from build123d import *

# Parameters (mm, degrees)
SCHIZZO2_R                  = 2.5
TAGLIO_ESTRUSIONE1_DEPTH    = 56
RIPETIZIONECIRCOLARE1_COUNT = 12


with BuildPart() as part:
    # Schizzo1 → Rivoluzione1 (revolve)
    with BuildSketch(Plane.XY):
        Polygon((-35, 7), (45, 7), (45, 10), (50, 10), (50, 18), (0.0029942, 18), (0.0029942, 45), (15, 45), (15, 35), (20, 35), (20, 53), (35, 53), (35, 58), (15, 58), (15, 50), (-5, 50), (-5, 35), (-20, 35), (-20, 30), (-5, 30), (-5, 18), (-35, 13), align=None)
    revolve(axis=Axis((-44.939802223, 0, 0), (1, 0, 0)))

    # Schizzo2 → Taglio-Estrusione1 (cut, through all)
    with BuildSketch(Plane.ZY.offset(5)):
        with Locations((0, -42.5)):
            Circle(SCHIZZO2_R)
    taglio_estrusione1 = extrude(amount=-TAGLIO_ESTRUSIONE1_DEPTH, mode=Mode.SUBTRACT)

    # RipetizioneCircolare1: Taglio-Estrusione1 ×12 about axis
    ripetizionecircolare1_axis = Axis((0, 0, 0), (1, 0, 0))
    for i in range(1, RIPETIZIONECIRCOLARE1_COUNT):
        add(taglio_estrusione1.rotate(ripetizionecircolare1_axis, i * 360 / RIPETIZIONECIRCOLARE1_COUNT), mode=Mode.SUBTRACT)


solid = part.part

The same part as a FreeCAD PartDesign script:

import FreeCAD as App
import Part
import Sketcher

V = App.Vector
Q = App.Units.Quantity

doc = App.newDocument("Part")
body = doc.addObject("PartDesign::Body", "Body")

sketch1 = body.newObject("Sketcher::SketchObject", "Sketch")
sketch1.AttachmentSupport = (doc.getObject("XY_Plane"), [""])
sketch1.MapMode = "FlatFace"
sketch1.addGeometry([
    Part.LineSegment(V(-35, 7, 0), V(45, 7, 0)),
    Part.LineSegment(V(45, 7, 0), V(45, 10, 0)),
    Part.LineSegment(V(45, 10, 0), V(50, 10, 0)),
    Part.LineSegment(V(50, 10, 0), V(50, 18, 0)),
    Part.LineSegment(V(50, 18, 0), V(0, 18, 0)),
    Part.LineSegment(V(0, 18, 0), V(0, 45, 0)),
    Part.LineSegment(V(0, 45, 0), V(15, 45, 0)),
    Part.LineSegment(V(15, 45, 0), V(15, 35, 0)),
    Part.LineSegment(V(15, 35, 0), V(20, 35, 0)),
    Part.LineSegment(V(20, 35, 0), V(20, 53, 0)),
    Part.LineSegment(V(20, 53, 0), V(35, 53, 0)),
    Part.LineSegment(V(35, 53, 0), V(35, 58, 0)),
    Part.LineSegment(V(35, 58, 0), V(15, 58, 0)),
    Part.LineSegment(V(15, 58, 0), V(15, 50, 0)),
    Part.LineSegment(V(15, 50, 0), V(-5, 50, 0)),
    Part.LineSegment(V(-5, 50, 0), V(-5, 35, 0)),
    Part.LineSegment(V(-5, 35, 0), V(-20, 35, 0)),
    Part.LineSegment(V(-20, 35, 0), V(-20, 30, 0)),
    Part.LineSegment(V(-20, 30, 0), V(-5, 30, 0)),
    Part.LineSegment(V(-5, 30, 0), V(-5, 18, 0)),
    Part.LineSegment(V(-5, 18, 0), V(-35, 13, 0)),
    Part.LineSegment(V(-35, 13, 0), V(-35, 7, 0)),
], False)
sketch1.addConstraint([
    Sketcher.Constraint("Coincident", 0, 2, 1, 1),
    Sketcher.Constraint("Coincident", 1, 2, 2, 1),
    Sketcher.Constraint("Coincident", 2, 2, 3, 1),
    Sketcher.Constraint("Coincident", 3, 2, 4, 1),
    Sketcher.Constraint("Coincident", 4, 2, 5, 1),
    Sketcher.Constraint("Coincident", 5, 2, 6, 1),
    Sketcher.Constraint("Coincident", 6, 2, 7, 1),
    Sketcher.Constraint("Coincident", 7, 2, 8, 1),
    Sketcher.Constraint("Coincident", 8, 2, 9, 1),
    Sketcher.Constraint("Coincident", 9, 2, 10, 1),
    Sketcher.Constraint("Coincident", 10, 2, 11, 1),
    Sketcher.Constraint("Coincident", 11, 2, 12, 1),
    Sketcher.Constraint("Coincident", 12, 2, 13, 1),
    Sketcher.Constraint("Coincident", 13, 2, 14, 1),
    Sketcher.Constraint("Coincident", 14, 2, 15, 1),
    Sketcher.Constraint("Coincident", 15, 2, 16, 1),
    Sketcher.Constraint("Coincident", 16, 2, 17, 1),
    Sketcher.Constraint("Coincident", 17, 2, 18, 1),
    Sketcher.Constraint("Coincident", 18, 2, 19, 1),
    Sketcher.Constraint("Coincident", 19, 2, 20, 1),
    Sketcher.Constraint("Coincident", 20, 2, 21, 1),
    Sketcher.Constraint("Coincident", 21, 2, 0, 1),
    Sketcher.Constraint("Horizontal", 0),
    Sketcher.Constraint("Vertical", 1),
    Sketcher.Constraint("Horizontal", 2),
    Sketcher.Constraint("Vertical", 3),
    Sketcher.Constraint("Horizontal", 4),
    Sketcher.Constraint("Vertical", 5),
    Sketcher.Constraint("Horizontal", 6),
    Sketcher.Constraint("Vertical", 7),
    Sketcher.Constraint("Horizontal", 8),
    Sketcher.Constraint("Vertical", 9),
    Sketcher.Constraint("Horizontal", 10),
    Sketcher.Constraint("Vertical", 11),
    Sketcher.Constraint("Horizontal", 12),
    Sketcher.Constraint("Vertical", 13),
    Sketcher.Constraint("Horizontal", 14),
    Sketcher.Constraint("Vertical", 15),
    Sketcher.Constraint("Horizontal", 16),
    Sketcher.Constraint("Vertical", 17),
    Sketcher.Constraint("Horizontal", 18),
    Sketcher.Constraint("Vertical", 19),
    Sketcher.Constraint("Vertical", 21),
    Sketcher.Constraint("Symmetric", 8, 2, 16, 2, -2),
    Sketcher.Constraint("Horizontal", 4, 2, 19, 2),
    Sketcher.Constraint("Vertical", 7, 2, 12, 2),
    Sketcher.Constraint("Vertical", 15, 2, 18, 2),
    Sketcher.Constraint("Equal", 2, 8),
    Sketcher.Constraint("Equal", 12, 14),
    Sketcher.Constraint("Equal", 10, 16),
    Sketcher.Constraint("Equal", 8, 11),
    Sketcher.Constraint("Equal", 3, 13),
    Sketcher.Constraint("Equal", 18, 15),
    Sketcher.Constraint("Equal", 11, 17),
    Sketcher.Constraint("DistanceX", 0, 1, 0, 2, Q("80 mm")),
    Sketcher.Constraint("DistanceX", 2, 1, 2, 2, Q("5 mm")),
    Sketcher.Constraint("DistanceX", 10, 1, 10, 2, Q("15 mm")),
    Sketcher.Constraint("DistanceY", 1, 1, 1, 2, Q("3 mm")),
    Sketcher.Constraint("DistanceY", 3, 1, 3, 2, Q("8 mm")),
    Sketcher.Constraint("DistanceY", 5, 1, 5, 2, Q("27 mm")),
    Sketcher.Constraint("DistanceY", 7, 2, 7, 1, Q("10 mm")),
    Sketcher.Constraint("DistanceY", 21, 2, 21, 1, Q("6 mm")),
    Sketcher.Constraint("DistanceX", -1, 1, 0, 2, Q("45 mm")),
    Sketcher.Constraint("DistanceY", -1, 1, 0, 2, Q("7 mm")),
    Sketcher.Constraint("DistanceX", 4, 2, 4, 1, Q("49.997006 mm")),
])
revolution = body.newObject("PartDesign::Revolution", "Revolution")
revolution.Profile = sketch1
revolution.ReferenceAxis = (sketch1, ["H_Axis"])
revolution.Angle = 360

sketch2 = body.newObject("Sketcher::SketchObject", "Sketch001")
sketch2.AttachmentSupport = (doc.getObject("YZ_Plane"), [""])
sketch2.MapMode = "FlatFace"
sketch2.AttachmentOffset = App.Placement(V(0, 0, -5), App.Rotation())
sketch2.addGeometry(Part.Circle(V(-42.5, 0, 0), V(0, 0, 1), 2.5), False)
sketch2.addConstraint([
    Sketcher.Constraint("PointOnObject", 0, 3, -1),
    Sketcher.Constraint("Diameter", 0, Q("5 mm")),
    Sketcher.Constraint("DistanceX", 0, 3, -1, 1, Q("42.5 mm")),
])
pocket1 = body.newObject("PartDesign::Pocket", "Pocket")
pocket1.Profile = sketch2
pocket1.Type = "ThroughAll"
pocket1.Reversed = True
doc.recompute()

polarpattern = body.newObject("PartDesign::PolarPattern", "PolarPattern")
polarpattern.Originals = [pocket1]
polarpattern.Axis = (doc.getObject("X_Axis"), [""])
polarpattern.Angle = 360
polarpattern.Occurrences = 12
body.Tip = polarpattern

doc.recompute()
